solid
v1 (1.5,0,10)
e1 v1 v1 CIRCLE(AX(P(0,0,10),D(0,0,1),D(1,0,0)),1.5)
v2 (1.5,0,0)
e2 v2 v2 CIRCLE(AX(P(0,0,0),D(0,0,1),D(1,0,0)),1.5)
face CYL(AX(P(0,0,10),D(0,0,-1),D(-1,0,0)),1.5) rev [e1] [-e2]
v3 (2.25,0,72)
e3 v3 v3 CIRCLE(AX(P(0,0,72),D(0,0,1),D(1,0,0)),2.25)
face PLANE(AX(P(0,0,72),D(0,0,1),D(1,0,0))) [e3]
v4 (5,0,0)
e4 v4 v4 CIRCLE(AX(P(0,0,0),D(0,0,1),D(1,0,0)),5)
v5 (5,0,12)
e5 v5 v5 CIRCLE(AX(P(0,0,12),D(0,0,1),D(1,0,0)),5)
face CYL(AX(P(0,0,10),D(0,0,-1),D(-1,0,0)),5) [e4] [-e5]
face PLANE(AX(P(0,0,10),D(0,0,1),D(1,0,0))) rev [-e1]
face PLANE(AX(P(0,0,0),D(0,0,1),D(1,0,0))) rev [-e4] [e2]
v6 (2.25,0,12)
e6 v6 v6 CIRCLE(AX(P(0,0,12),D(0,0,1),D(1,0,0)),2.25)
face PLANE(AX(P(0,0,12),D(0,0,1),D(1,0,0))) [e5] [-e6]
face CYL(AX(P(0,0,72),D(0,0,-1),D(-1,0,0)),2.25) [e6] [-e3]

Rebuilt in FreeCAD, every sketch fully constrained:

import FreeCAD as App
import Part
import Sketcher

doc = App.newDocument("Part")
body = doc.addObject("PartDesign::Body", "Body")

sketch1 = doc.addObject("Sketcher::SketchObject", "Sketch")
body.addObject(sketch1)
sketch1.AttachmentSupport = (doc.XY_Plane, [""])
sketch1.MapMode = "FlatFace"
sketch1.addGeometry([
    Part.Circle(App.Vector(0, 0, 0), App.Vector(0, 0, 1), 5),
    Part.Circle(App.Vector(0, 0, 0), App.Vector(0, 0, 1), 1.5),
], False)
sketch1.addConstraint([
    Sketcher.Constraint("Coincident", 0, 3, -1, 1),
    Sketcher.Constraint("Coincident", 1, 3, -1, 1),
    Sketcher.Constraint("Diameter", 0, 10.0),
    Sketcher.Constraint("Diameter", 1, 3.0),
])
pad1 = doc.addObject("PartDesign::Pad", "Pad")
body.addObject(pad1)
pad1.Profile = sketch1
pad1.Length = 10

sketch2 = doc.addObject("Sketcher::SketchObject", "Sketch001")
body.addObject(sketch2)
sketch2.AttachmentSupport = (doc.XY_Plane, [""])
sketch2.MapMode = "FlatFace"
sketch2.AttachmentOffset = App.Placement(App.Vector(0, 0, 10), App.Rotation())
sketch2.addGeometry(Part.Circle(App.Vector(0, 0, 0), App.Vector(0, 0, 1), 5), False)
sketch2.addConstraint([
    Sketcher.Constraint("Coincident", 0, 3, -1, 1),
    Sketcher.Constraint("Diameter", 0, 10.0),
])
pad2 = doc.addObject("PartDesign::Pad", "Pad001")
body.addObject(pad2)
pad2.Profile = sketch2
pad2.Length = 2

sketch3 = doc.addObject("Sketcher::SketchObject", "Sketch002")
body.addObject(sketch3)
sketch3.AttachmentSupport = (doc.XY_Plane, [""])
sketch3.MapMode = "FlatFace"
sketch3.AttachmentOffset = App.Placement(App.Vector(0, 0, 12), App.Rotation())
sketch3.addGeometry(Part.Circle(App.Vector(0, 0, 0), App.Vector(0, 0, 1), 2.2), False)
sketch3.addConstraint([
    Sketcher.Constraint("Coincident", 0, 3, -1, 1),
    Sketcher.Constraint("Diameter", 0, 4.5),
])
pad3 = doc.addObject("PartDesign::Pad", "Pad002")
body.addObject(pad3)
pad3.Profile = sketch3
pad3.Length = 60

doc.recompute()
